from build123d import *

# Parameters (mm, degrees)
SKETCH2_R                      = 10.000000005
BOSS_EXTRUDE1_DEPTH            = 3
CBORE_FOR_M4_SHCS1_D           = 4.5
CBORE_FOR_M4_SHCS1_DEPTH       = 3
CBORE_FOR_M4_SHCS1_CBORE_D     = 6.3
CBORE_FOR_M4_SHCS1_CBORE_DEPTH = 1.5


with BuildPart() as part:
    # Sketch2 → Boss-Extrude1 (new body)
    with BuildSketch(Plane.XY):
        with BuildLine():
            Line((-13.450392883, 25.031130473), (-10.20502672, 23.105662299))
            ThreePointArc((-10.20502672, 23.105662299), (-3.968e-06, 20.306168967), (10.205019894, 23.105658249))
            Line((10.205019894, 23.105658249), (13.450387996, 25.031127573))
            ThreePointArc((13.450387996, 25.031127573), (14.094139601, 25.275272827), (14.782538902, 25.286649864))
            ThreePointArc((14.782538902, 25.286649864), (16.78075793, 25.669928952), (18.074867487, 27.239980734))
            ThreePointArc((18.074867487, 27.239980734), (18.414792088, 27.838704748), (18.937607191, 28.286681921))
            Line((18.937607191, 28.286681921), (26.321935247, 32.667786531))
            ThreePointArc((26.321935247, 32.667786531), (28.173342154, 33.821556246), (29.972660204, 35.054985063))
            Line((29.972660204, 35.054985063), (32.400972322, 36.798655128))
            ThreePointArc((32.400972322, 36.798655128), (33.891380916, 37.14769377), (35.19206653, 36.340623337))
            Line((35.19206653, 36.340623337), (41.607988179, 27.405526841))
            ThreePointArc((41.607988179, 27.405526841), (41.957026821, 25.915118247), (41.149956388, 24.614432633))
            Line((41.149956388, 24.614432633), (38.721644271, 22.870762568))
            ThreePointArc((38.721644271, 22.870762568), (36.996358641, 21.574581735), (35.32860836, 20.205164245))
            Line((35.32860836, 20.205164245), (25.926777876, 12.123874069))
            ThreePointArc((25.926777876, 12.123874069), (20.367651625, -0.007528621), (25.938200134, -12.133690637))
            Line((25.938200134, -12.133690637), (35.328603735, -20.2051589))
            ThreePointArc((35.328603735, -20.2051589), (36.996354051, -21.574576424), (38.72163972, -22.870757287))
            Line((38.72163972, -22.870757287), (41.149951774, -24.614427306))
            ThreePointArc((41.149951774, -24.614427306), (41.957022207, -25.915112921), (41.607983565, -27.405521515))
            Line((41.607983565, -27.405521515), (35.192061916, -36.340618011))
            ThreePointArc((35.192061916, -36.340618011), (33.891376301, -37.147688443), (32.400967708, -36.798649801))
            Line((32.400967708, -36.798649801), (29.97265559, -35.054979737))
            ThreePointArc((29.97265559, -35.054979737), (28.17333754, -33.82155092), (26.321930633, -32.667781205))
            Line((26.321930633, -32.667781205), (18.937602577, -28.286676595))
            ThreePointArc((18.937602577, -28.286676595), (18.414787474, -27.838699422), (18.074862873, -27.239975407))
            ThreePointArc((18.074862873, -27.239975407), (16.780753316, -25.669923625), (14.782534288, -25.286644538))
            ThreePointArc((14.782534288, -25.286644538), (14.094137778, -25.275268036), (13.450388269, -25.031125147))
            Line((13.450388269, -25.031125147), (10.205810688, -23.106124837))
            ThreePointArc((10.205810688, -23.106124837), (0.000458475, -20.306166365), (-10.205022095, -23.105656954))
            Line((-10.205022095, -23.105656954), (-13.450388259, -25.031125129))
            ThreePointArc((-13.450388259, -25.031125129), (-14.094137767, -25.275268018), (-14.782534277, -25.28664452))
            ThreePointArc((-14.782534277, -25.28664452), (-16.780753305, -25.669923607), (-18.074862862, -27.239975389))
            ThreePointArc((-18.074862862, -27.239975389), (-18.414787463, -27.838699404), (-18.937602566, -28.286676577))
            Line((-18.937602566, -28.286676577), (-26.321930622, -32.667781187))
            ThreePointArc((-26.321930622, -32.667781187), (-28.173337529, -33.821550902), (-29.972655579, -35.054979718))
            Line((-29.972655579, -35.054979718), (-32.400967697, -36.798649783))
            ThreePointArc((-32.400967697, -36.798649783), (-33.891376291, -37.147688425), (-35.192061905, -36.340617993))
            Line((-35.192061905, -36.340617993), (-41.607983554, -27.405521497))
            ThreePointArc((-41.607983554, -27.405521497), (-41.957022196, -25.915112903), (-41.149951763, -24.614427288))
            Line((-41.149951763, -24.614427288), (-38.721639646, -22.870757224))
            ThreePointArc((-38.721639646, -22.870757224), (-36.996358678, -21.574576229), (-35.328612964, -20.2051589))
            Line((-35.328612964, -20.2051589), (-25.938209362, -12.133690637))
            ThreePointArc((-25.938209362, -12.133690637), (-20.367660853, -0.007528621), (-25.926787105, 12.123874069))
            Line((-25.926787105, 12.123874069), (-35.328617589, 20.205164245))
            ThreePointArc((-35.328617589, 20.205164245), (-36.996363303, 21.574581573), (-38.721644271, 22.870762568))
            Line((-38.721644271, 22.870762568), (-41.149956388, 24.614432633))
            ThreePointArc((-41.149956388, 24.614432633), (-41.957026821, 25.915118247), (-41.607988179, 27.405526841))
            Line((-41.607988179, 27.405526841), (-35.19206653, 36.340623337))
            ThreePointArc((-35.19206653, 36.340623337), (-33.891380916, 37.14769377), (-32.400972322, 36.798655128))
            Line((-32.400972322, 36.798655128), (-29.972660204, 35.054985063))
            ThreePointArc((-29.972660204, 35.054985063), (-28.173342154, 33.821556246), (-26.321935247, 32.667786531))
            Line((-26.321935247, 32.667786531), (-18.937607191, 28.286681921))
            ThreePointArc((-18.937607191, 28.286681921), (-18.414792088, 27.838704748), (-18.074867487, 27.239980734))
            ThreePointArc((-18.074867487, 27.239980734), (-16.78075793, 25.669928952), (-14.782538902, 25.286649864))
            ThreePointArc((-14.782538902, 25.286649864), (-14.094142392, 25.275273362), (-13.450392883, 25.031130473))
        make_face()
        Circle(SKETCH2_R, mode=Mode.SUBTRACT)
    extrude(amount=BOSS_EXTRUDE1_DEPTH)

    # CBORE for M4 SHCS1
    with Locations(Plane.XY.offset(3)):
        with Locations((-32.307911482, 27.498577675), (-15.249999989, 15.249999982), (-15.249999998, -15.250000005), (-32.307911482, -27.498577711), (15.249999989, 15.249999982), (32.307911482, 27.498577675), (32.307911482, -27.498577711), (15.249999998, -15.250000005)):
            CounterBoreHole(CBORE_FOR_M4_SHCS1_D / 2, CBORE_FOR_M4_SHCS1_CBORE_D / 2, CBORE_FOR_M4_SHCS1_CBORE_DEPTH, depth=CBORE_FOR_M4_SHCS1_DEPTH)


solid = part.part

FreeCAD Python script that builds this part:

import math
import FreeCAD as App
import Part
import Sketcher

V = App.Vector
Q = App.Units.Quantity

doc = App.newDocument("Part")
body = doc.addObject("PartDesign::Body", "Body")

# Sketch on XY plane
sketch1 = body.newObject("Sketcher::SketchObject", "Sketch")
sketch1.AttachmentSupport = (doc.getObject("XY_Plane"), [""])
sketch1.MapMode = "FlatFace"
sketch1.addGeometry(Part.LineSegment(V(-10.205027, 23.105662, 0), V(-13.450393, 25.03113, 0)), False)
sketch1.addGeometry(Part.ArcOfCircle(Part.Circle(V(-14.470895, 23.31108, 0), V(0, 0, 1), 2), math.radians(59.319443), math.radians(98.964467)), False)
sketch1.addGeometry(Part.ArcOfCircle(Part.Circle(V(-15.250005, 28.250005, 0), V(0, 0, 1), 3), math.radians(-160.325581), math.radians(-81.035533)), False)
sketch1.addGeometry(Part.ArcOfCircle(Part.Circle(V(-19.958109, 26.566631, 0), V(0, 0, 1), 2), math.radians(19.674419), math.radians(59.319443)), False)
sketch1.addGeometry(Part.LineSegment(V(-18.937607, 28.286682, 0), V(-26.321935, 32.667787, 0)), False)
sketch1.addGeometry(Part.ArcOfCircle(Part.Circle(V(-0.80938, 75.66906, 0), V(0, 0, 1), 50), math.radians(-125.680557), math.radians(-120.680557)), False)
sketch1.addGeometry(Part.LineSegment(V(-29.97266, 35.054985, 0), V(-32.400972, 36.798655, 0)), False)
sketch1.addGeometry(Part.ArcOfCircle(Part.Circle(V(-33.567504, 35.174092, 0), V(0, 0, 1), 2), math.radians(54.319443), math.radians(144.319443)), False)
sketch1.addGeometry(Part.LineSegment(V(-35.192067, 36.340623, 0), V(-41.607988, 27.405527, 0)), False)
sketch1.addGeometry(Part.ArcOfCircle(Part.Circle(V(-39.983425, 26.238996, 0), V(0, 0, 1), 2), math.radians(144.319443), math.radians(234.319443)), False)
sketch1.addGeometry(Part.LineSegment(V(-41.149956, 24.614433, 0), V(-38.721644, 22.870763, 0)), False)
sketch1.addGeometry(Part.ArcOfCircle(Part.Circle(V(-67.884924, -17.743312, 0), V(0, 0, 1), 50), math.radians(49.373438), math.radians(54.319443)), False)
sketch1.addGeometry(Part.LineSegment(V(-35.328618, 20.205164, 0), V(-25.926787, 12.123874, 0)), False)
sketch1.addGeometry(Part.ArcOfCircle(Part.Circle(V(-36.367659, 0.000005, 0), V(0, 0, 1), 16), math.radians(-49.31948), math.radians(49.265522)), False)
sketch1.addGeometry(Part.LineSegment(V(-25.938209, -12.133691, 0), V(-35.328613, -20.205159, 0)), False)
sketch1.addGeometry(Part.ArcOfCircle(Part.Circle(V(-67.88492, 17.743317, 0), V(0, 0, 1), 50), math.radians(-54.319443), math.radians(-49.373438)), False)
sketch1.addGeometry(Part.LineSegment(V(-38.72164, -22.870757, 0), V(-41.149952, -24.614427, 0)), False)
sketch1.addGeometry(Part.ArcOfCircle(Part.Circle(V(-39.983421, -26.23899, 0), V(0, 0, 1), 2), math.radians(125.680557), math.radians(215.680557)), False)
sketch1.addGeometry(Part.LineSegment(V(-41.607984, -27.405521, 0), V(-35.192062, -36.340618, 0)), False)
sketch1.addGeometry(Part.ArcOfCircle(Part.Circle(V(-33.567499, -35.174087, 0), V(0, 0, 1), 2), math.radians(-144.319443), math.radians(-54.319443)), False)
sketch1.addGeometry(Part.LineSegment(V(-32.400968, -36.79865, 0), V(-29.972656, -35.05498, 0)), False)
sketch1.addGeometry(Part.ArcOfCircle(Part.Circle(V(-0.809375, -75.669055, 0), V(0, 0, 1), 50), math.radians(120.680557), math.radians(125.680557)), False)
sketch1.addGeometry(Part.LineSegment(V(-26.321931, -32.667781, 0), V(-18.937603, -28.286677, 0)), False)
sketch1.addGeometry(Part.ArcOfCircle(Part.Circle(V(-19.958105, -26.566626, 0), V(0, 0, 1), 2), math.radians(-59.319443), math.radians(-19.674418)), False)
sketch1.addGeometry(Part.ArcOfCircle(Part.Circle(V(-15.25, -28.25, 0), V(0, 0, 1), 3), math.radians(81.035533), math.radians(160.325581)), False)
sketch1.addGeometry(Part.ArcOfCircle(Part.Circle(V(-14.47089, -23.311074, 0), V(0, 0, 1), 2), math.radians(-98.964467), math.radians(-59.319443)), False)
sketch1.addGeometry(Part.LineSegment(V(-13.450388, -25.031125, 0), V(-10.205022, -23.105657, 0)), False)
sketch1.addGeometry(Part.ArcOfCircle(Part.Circle(V(0, -40.306166, 0), V(0, 0, 1), 20), math.radians(59.316816), math.radians(120.680557)), False)
sketch1.addGeometry(Part.LineSegment(V(10.205811, -23.106125, 0), V(13.450388, -25.031125, 0)), False)
sketch1.addGeometry(Part.ArcOfCircle(Part.Circle(V(14.47089, -23.311074, 0), V(0, 0, 1), 2), math.radians(-120.680557), math.radians(-81.035533)), False)
sketch1.addGeometry(Part.ArcOfCircle(Part.Circle(V(15.25, -28.25, 0), V(0, 0, 1), 3), math.radians(19.674419), math.radians(98.964467)), False)
sketch1.addGeometry(Part.ArcOfCircle(Part.Circle(V(19.958105, -26.566626, 0), V(0, 0, 1), 2), math.radians(-160.325582), math.radians(-120.680557)), False)
sketch1.addGeometry(Part.LineSegment(V(18.937603, -28.286677, 0), V(26.321931, -32.667781, 0)), False)
sketch1.addGeometry(Part.ArcOfCircle(Part.Circle(V(0.809375, -75.669055, 0), V(0, 0, 1), 50), math.radians(54.319443), math.radians(59.319443)), False)
sketch1.addGeometry(Part.LineSegment(V(29.972656, -35.05498, 0), V(32.400968, -36.79865, 0)), False)
sketch1.addGeometry(Part.ArcOfCircle(Part.Circle(V(33.567499, -35.174087, 0), V(0, 0, 1), 2), math.radians(-125.680557), math.radians(-35.680557)), False)
sketch1.addGeometry(Part.LineSegment(V(35.192062, -36.340618, 0), V(41.607984, -27.405522, 0)), False)
sketch1.addGeometry(Part.ArcOfCircle(Part.Circle(V(39.983421, -26.23899, 0), V(0, 0, 1), 2), math.radians(-35.680557), math.radians(54.319443)), False)
sketch1.addGeometry(Part.LineSegment(V(41.149952, -24.614427, 0), V(38.72164, -22.870757, 0)), False)
sketch1.addGeometry(Part.ArcOfCircle(Part.Circle(V(67.884863, 17.743358, 0), V(0, 0, 1), 49.999999), math.radians(-130.62649), math.radians(-125.680477)), False)
sketch1.addGeometry(Part.LineSegment(V(35.328604, -20.205159, 0), V(25.9382, -12.133691, 0)), False)
sketch1.addGeometry(Part.ArcOfCircle(Part.Circle(V(36.36765, 0.000005, 0), V(0, 0, 1), 16), math.radians(130.734478), math.radians(229.31948)), False)
sketch1.addGeometry(Part.LineSegment(V(25.926778, 12.123874, 0), V(35.328608, 20.205164, 0)), False)
sketch1.addGeometry(Part.ArcOfCircle(Part.Circle(V(67.884868, -17.743353, 0), V(0, 0, 1), 50), math.radians(125.680477), math.radians(130.62649)), False)
sketch1.addGeometry(Part.LineSegment(V(38.721644, 22.870763, 0), V(41.149956, 24.614433, 0)), False)
sketch1.addGeometry(Part.ArcOfCircle(Part.Circle(V(39.983425, 26.238996, 0), V(0, 0, 1), 2), math.radians(-54.319443), math.radians(35.680557)), False)
sketch1.addGeometry(Part.LineSegment(V(41.607988, 27.405527, 0), V(35.192067, 36.340623, 0)), False)
sketch1.addGeometry(Part.ArcOfCircle(Part.Circle(V(33.567504, 35.174092, 0), V(0, 0, 1), 2), math.radians(35.680557), math.radians(125.680557)), False)
sketch1.addGeometry(Part.LineSegment(V(32.400972, 36.798655, 0), V(29.97266, 35.054985, 0)), False)
sketch1.addGeometry(Part.ArcOfCircle(Part.Circle(V(0.80938, 75.66906, 0), V(0, 0, 1), 50), math.radians(-59.319443), math.radians(-54.319443)), False)
sketch1.addGeometry(Part.LineSegment(V(26.321935, 32.667787, 0), V(18.937607, 28.286682, 0)), False)
sketch1.addGeometry(Part.ArcOfCircle(Part.Circle(V(19.958109, 26.566631, 0), V(0, 0, 1), 2), math.radians(120.680557), math.radians(160.325581)), False)
sketch1.addGeometry(Part.ArcOfCircle(Part.Circle(V(15.250005, 28.250005, 0), V(0, 0, 1), 3), math.radians(-98.964467), math.radians(-19.674419)), False)
sketch1.addGeometry(Part.ArcOfCircle(Part.Circle(V(14.470895, 23.31108, 0), V(0, 0, 1), 2), math.radians(81.035533), math.radians(120.68072)), False)
sketch1.addGeometry(Part.LineSegment(V(13.450388, 25.031128, 0), V(10.20502, 23.105658, 0)), False)
sketch1.addGeometry(Part.ArcOfCircle(Part.Circle(V(0, 40.306169, 0), V(0, 0, 1), 20), math.radians(-120.680573), math.radians(-59.31945)), False)
sketch1.addGeometry(Part.Circle(V(0, 0, 0), V(0, 0, 1), 10), False)
sketch1.addConstraint(Sketcher.Constraint("Coincident", 0, 2, 1, 1))
sketch1.addConstraint(Sketcher.Constraint("Coincident", 1, 2, 2, 2))
sketch1.addConstraint(Sketcher.Constraint("Coincident", 2, 1, 3, 1))
sketch1.addConstraint(Sketcher.Constraint("Coincident", 3, 2, 4, 1))
sketch1.addConstraint(Sketcher.Constraint("Coincident", 4, 2, 5, 2))
sketch1.addConstraint(Sketcher.Constraint("Coincident", 5, 1, 6, 1))
sketch1.addConstraint(Sketcher.Constraint("Coincident", 6, 2, 7, 1))
sketch1.addConstraint(Sketcher.Constraint("Coincident", 7, 2, 8, 1))
sketch1.addConstraint(Sketcher.Constraint("Coincident", 8, 2, 9, 1))
sketch1.addConstraint(Sketcher.Constraint("Coincident", 9, 2, 10, 1))
sketch1.addConstraint(Sketcher.Constraint("Coincident", 10, 2, 11, 2))
sketch1.addConstraint(Sketcher.Constraint("Coincident", 11, 1, 12, 1))
sketch1.addConstraint(Sketcher.Constraint("Coincident", 12, 2, 13, 2))
sketch1.addConstraint(Sketcher.Constraint("Coincident", 13, 1, 14, 1))
sketch1.addConstraint(Sketcher.Constraint("Coincident", 14, 2, 15, 2))
sketch1.addConstraint(Sketcher.Constraint("Coincident", 15, 1, 16, 1))
sketch1.addConstraint(Sketcher.Constraint("Coincident", 16, 2, 17, 1))
sketch1.addConstraint(Sketcher.Constraint("Coincident", 17, 2, 18, 1))
sketch1.addConstraint(Sketcher.Constraint("Coincident", 18, 2, 19, 1))
sketch1.addConstraint(Sketcher.Constraint("Coincident", 19, 2, 20, 1))
sketch1.addConstraint(Sketcher.Constraint("Coincident", 20, 2, 21, 2))
sketch1.addConstraint(Sketcher.Constraint("Coincident", 21, 1, 22, 1))
sketch1.addConstraint(Sketcher.Constraint("Coincident", 22, 2, 23, 1))
sketch1.addConstraint(Sketcher.Constraint("Coincident", 23, 2, 24, 2))
sketch1.addConstraint(Sketcher.Constraint("Coincident", 24, 1, 25, 1))
sketch1.addConstraint(Sketcher.Constraint("Coincident", 25, 2, 26, 1))
sketch1.addConstraint(Sketcher.Constraint("Coincident", 26, 2, 27, 2))
sketch1.addConstraint(Sketcher.Constraint("Coincident", 27, 1, 28, 1))
sketch1.addConstraint(Sketcher.Constraint("Coincident", 28, 2, 29, 1))
sketch1.addConstraint(Sketcher.Constraint("Coincident", 29, 2, 30, 2))
sketch1.addConstraint(Sketcher.Constraint("Coincident", 30, 1, 31, 1))
sketch1.addConstraint(Sketcher.Constraint("Coincident", 31, 2, 32, 1))
sketch1.addConstraint(Sketcher.Constraint("Coincident", 32, 2, 33, 2))
sketch1.addConstraint(Sketcher.Constraint("Coincident", 33, 1, 34, 1))
sketch1.addConstraint(Sketcher.Constraint("Coincident", 34, 2, 35, 1))
sketch1.addConstraint(Sketcher.Constraint("Coincident", 35, 2, 36, 1))
sketch1.addConstraint(Sketcher.Constraint("Coincident", 36, 2, 37, 1))
sketch1.addConstraint(Sketcher.Constraint("Coincident", 37, 2, 38, 1))
sketch1.addConstraint(Sketcher.Constraint("Coincident", 38, 2, 39, 2))
sketch1.addConstraint(Sketcher.Constraint("Coincident", 39, 1, 40, 1))
sketch1.addConstraint(Sketcher.Constraint("Coincident", 40, 2, 41, 2))
sketch1.addConstraint(Sketcher.Constraint("Coincident", 41, 1, 42, 1))
sketch1.addConstraint(Sketcher.Constraint("Coincident", 42, 2, 43, 2))
sketch1.addConstraint(Sketcher.Constraint("Coincident", 43, 1, 44, 1))
sketch1.addConstraint(Sketcher.Constraint("Coincident", 44, 2, 45, 1))
sketch1.addConstraint(Sketcher.Constraint("Coincident", 45, 2, 46, 1))
sketch1.addConstraint(Sketcher.Constraint("Coincident", 46, 2, 47, 1))
sketch1.addConstraint(Sketcher.Constraint("Coincident", 47, 2, 48, 1))
sketch1.addConstraint(Sketcher.Constraint("Coincident", 48, 2, 49, 2))
sketch1.addConstraint(Sketcher.Constraint("Coincident", 49, 1, 50, 1))
sketch1.addConstraint(Sketcher.Constraint("Coincident", 50, 2, 51, 1))
sketch1.addConstraint(Sketcher.Constraint("Coincident", 51, 2, 52, 2))
sketch1.addConstraint(Sketcher.Constraint("Coincident", 52, 1, 53, 1))
sketch1.addConstraint(Sketcher.Constraint("Coincident", 53, 2, 54, 1))
sketch1.addConstraint(Sketcher.Constraint("Coincident", 54, 2, 55, 2))
sketch1.addConstraint(Sketcher.Constraint("Coincident", 55, 1, 0, 1))
sketch1.addConstraint(Sketcher.Constraint("Coincident", 56, 3, -1, 1))
sketch1.addConstraint(Sketcher.Constraint("PointOnObject", 27, 3, -2))
sketch1.addConstraint(Sketcher.Constraint("PointOnObject", 55, 3, -2))
sketch1.addConstraint(Sketcher.Constraint("Diameter", 56, Q("20 mm")))
sketch1.addConstraint(Sketcher.Constraint("Radius", 1, Q("2 mm")))
sketch1.addConstraint(Sketcher.Constraint("Radius", 2, Q("3 mm")))
sketch1.addConstraint(Sketcher.Constraint("Radius", 3, Q("2 mm")))
sketch1.addConstraint(Sketcher.Constraint("Radius", 5, Q("50 mm")))
sketch1.addConstraint(Sketcher.Constraint("Radius", 7, Q("2 mm")))
sketch1.addConstraint(Sketcher.Constraint("Radius", 9, Q("2 mm")))
sketch1.addConstraint(Sketcher.Constraint("Radius", 11, Q("50 mm")))
sketch1.addConstraint(Sketcher.Constraint("Radius", 13, Q("16 mm")))
sketch1.addConstraint(Sketcher.Constraint("Radius", 15, Q("50 mm")))
sketch1.addConstraint(Sketcher.Constraint("Radius", 17, Q("2 mm")))
sketch1.addConstraint(Sketcher.Constraint("Radius", 19, Q("2 mm")))
sketch1.addConstraint(Sketcher.Constraint("Radius", 21, Q("50 mm")))
sketch1.addConstraint(Sketcher.Constraint("Radius", 23, Q("2 mm")))
sketch1.addConstraint(Sketcher.Constraint("Radius", 24, Q("3 mm")))
sketch1.addConstraint(Sketcher.Constraint("Radius", 25, Q("2 mm")))
sketch1.addConstraint(Sketcher.Constraint("Radius", 27, Q("20 mm")))
sketch1.addConstraint(Sketcher.Constraint("Radius", 29, Q("2 mm")))
sketch1.addConstraint(Sketcher.Constraint("Radius", 30, Q("3 mm")))
sketch1.addConstraint(Sketcher.Constraint("Radius", 31, Q("2 mm")))
sketch1.addConstraint(Sketcher.Constraint("Radius", 33, Q("50 mm")))
sketch1.addConstraint(Sketcher.Constraint("Radius", 35, Q("2 mm")))
sketch1.addConstraint(Sketcher.Constraint("Radius", 37, Q("2 mm")))
sketch1.addConstraint(Sketcher.Constraint("Radius", 39, Q("49.999999 mm")))
sketch1.addConstraint(Sketcher.Constraint("Radius", 41, Q("16 mm")))
sketch1.addConstraint(Sketcher.Constraint("Radius", 43, Q("50 mm")))
sketch1.addConstraint(Sketcher.Constraint("Radius", 45, Q("2 mm")))
sketch1.addConstraint(Sketcher.Constraint("Radius", 47, Q("2 mm")))
sketch1.addConstraint(Sketcher.Constraint("Radius", 49, Q("50 mm")))
sketch1.addConstraint(Sketcher.Constraint("Radius", 51, Q("2 mm")))
sketch1.addConstraint(Sketcher.Constraint("Radius", 52, Q("3 mm")))
sketch1.addConstraint(Sketcher.Constraint("Radius", 53, Q("2 mm")))
sketch1.addConstraint(Sketcher.Constraint("Radius", 55, Q("20 mm")))
sketch1.addConstraint(Sketcher.Constraint("Distance", 8, Q("11 mm")))
sketch1.addConstraint(Sketcher.Constraint("Distance", 18, Q("11 mm")))
sketch1.addConstraint(Sketcher.Constraint("Distance", 36, Q("11 mm")))
sketch1.addConstraint(Sketcher.Constraint("Distance", 46, Q("11 mm")))
sketch1.addConstraint(Sketcher.Constraint("DistanceX", 24, 3, -1, 1, Q("15.25 mm")))
sketch1.addConstraint(Sketcher.Constraint("DistanceY", 24, 3, -1, 1, Q("28.25 mm")))
sketch1.addConstraint(Sketcher.Constraint("DistanceX", -1, 1, 30, 3, Q("15.25 mm")))
sketch1.addConstraint(Sketcher.Constraint("DistanceY", 30, 3, -1, 1, Q("28.25 mm")))
sketch1.addConstraint(Sketcher.Constraint("DistanceX", 19, 3, -1, 1, Q("33.567499 mm")))
sketch1.addConstraint(Sketcher.Constraint("DistanceX", -1, 1, 35, 3, Q("33.567499 mm")))
sketch1.addConstraint(Sketcher.Constraint("DistanceX", -1, 1, 40, 2, Q("25.9382 mm")))
sketch1.addConstraint(Sketcher.Constraint("Distance", 0, Q("3.77357 mm")))
sketch1.addConstraint(Sketcher.Constraint("Distance", 14, Q("12.38258 mm")))
sketch1.addConstraint(Sketcher.Constraint("Distance", 26, Q("3.77357 mm")))
sketch1.addConstraint(Sketcher.Constraint("Distance", 40, Q("12.38258 mm")))
sketch1.addConstraint(Sketcher.Constraint("DistanceY", -1, 1, 1, 3, Q("23.31108 mm")))
sketch1.addConstraint(Sketcher.Constraint("DistanceX", 3, 3, -1, 1, Q("19.958109 mm")))
sketch1.addConstraint(Sketcher.Constraint("DistanceY", -1, 1, 3, 3, Q("26.566631 mm")))
sketch1.addConstraint(Sketcher.Constraint("DistanceX", 5, 3, -1, 1, Q("0.80938 mm")))
sketch1.addConstraint(Sketcher.Constraint("DistanceY", -1, 1, 5, 3, Q("75.66906 mm")))
sketch1.addConstraint(Sketcher.Constraint("DistanceX", 13, 3, -1, 1, Q("36.367659 mm")))
sketch1.addConstraint(Sketcher.Constraint("DistanceX", 15, 3, -1, 1, Q("67.88492 mm")))
sketch1.addConstraint(Sketcher.Constraint("DistanceX", 17, 3, -1, 1, Q("39.983421 mm")))
sketch1.addConstraint(Sketcher.Constraint("DistanceY", 17, 3, -1, 1, Q("26.23899 mm")))
sketch1.addConstraint(Sketcher.Constraint("DistanceX", 25, 3, -1, 1, Q("14.47089 mm")))
sketch1.addConstraint(Sketcher.Constraint("DistanceX", -1, 1, 29, 3, Q("14.47089 mm")))
sketch1.addConstraint(Sketcher.Constraint("DistanceX", -1, 1, 37, 3, Q("39.983421 mm")))
sketch1.addConstraint(Sketcher.Constraint("DistanceY", 37, 3, -1, 1, Q("26.23899 mm")))
sketch1.addConstraint(Sketcher.Constraint("DistanceX", -1, 1, 41, 3, Q("36.36765 mm")))
sketch1.addConstraint(Sketcher.Constraint("DistanceX", -1, 1, 49, 3, Q("0.80938 mm")))
sketch1.addConstraint(Sketcher.Constraint("DistanceY", -1, 1, 49, 3, Q("75.66906 mm")))
sketch1.addConstraint(Sketcher.Constraint("DistanceX", -1, 1, 51, 3, Q("19.958109 mm")))
sketch1.addConstraint(Sketcher.Constraint("DistanceY", -1, 1, 51, 3, Q("26.566631 mm")))
sketch1.addConstraint(Sketcher.Constraint("DistanceY", -1, 1, 53, 3, Q("23.31108 mm")))
sketch1.addConstraint(Sketcher.Constraint("DistanceY", -1, 1, 55, 3, Q("40.306169 mm")))
sketch1.addConstraint(Sketcher.Constraint("DistanceY", -1, 1, 0, 2, Q("25.03113 mm")))
sketch1.addConstraint(Sketcher.Constraint("DistanceX", 1, 2, -1, 1, Q("14.782539 mm")))
sketch1.addConstraint(Sketcher.Constraint("DistanceY", -1, 1, 1, 2, Q("25.28665 mm")))
sketch1.addConstraint(Sketcher.Constraint("DistanceY", -1, 1, 2, 1, Q("27.239981 mm")))
sketch1.addConstraint(Sketcher.Constraint("DistanceY", -1, 1, 3, 2, Q("28.286682 mm")))
sketch1.addConstraint(Sketcher.Constraint("DistanceX", 5, 1, -1, 1, Q("29.97266 mm")))
sketch1.addConstraint(Sketcher.Constraint("DistanceX", 8, 2, -1, 1, Q("41.607988 mm")))
sketch1.addConstraint(Sketcher.Constraint("DistanceX", 13, 1, -1, 1, Q("25.938209 mm")))
sketch1.addConstraint(Sketcher.Constraint("DistanceY", 13, 1, -1, 1, Q("12.133691 mm")))
sketch1.addConstraint(Sketcher.Constraint("DistanceY", 14, 2, -1, 1, Q("20.205159 mm")))
sketch1.addConstraint(Sketcher.Constraint("DistanceX", 15, 1, -1, 1, Q("38.72164 mm")))
sketch1.addConstraint(Sketcher.Constraint("DistanceX", 16, 2, -1, 1, Q("41.149952 mm")))
sketch1.addConstraint(Sketcher.Constraint("DistanceY", 17, 2, -1, 1, Q("27.405521 mm")))
sketch1.addConstraint(Sketcher.Constraint("DistanceX", 18, 2, -1, 1, Q("35.192062 mm")))
sketch1.addConstraint(Sketcher.Constraint("DistanceY", 19, 2, -1, 1, Q("36.79865 mm")))
sketch1.addConstraint(Sketcher.Constraint("DistanceY", 20, 2, -1, 1, Q("35.05498 mm")))
sketch1.addConstraint(Sketcher.Constraint("DistanceX", 21, 1, -1, 1, Q("26.321931 mm")))
sketch1.addConstraint(Sketcher.Constraint("DistanceY", 21, 1, -1, 1, Q("32.667781 mm")))
sketch1.addConstraint(Sketcher.Constraint("DistanceX", 25, 2, -1, 1, Q("13.450388 mm")))
sketch1.addConstraint(Sketcher.Constraint("DistanceX", -1, 1, 27, 1, Q("10.205811 mm")))
sketch1.addConstraint(Sketcher.Constraint("DistanceX", -1, 1, 28, 2, Q("13.450388 mm")))
sketch1.addConstraint(Sketcher.Constraint("DistanceX", -1, 1, 32, 2, Q("26.321931 mm")))
sketch1.addConstraint(Sketcher.Constraint("DistanceY", 32, 2, -1, 1, Q("32.667781 mm")))
sketch1.addConstraint(Sketcher.Constraint("DistanceY", 33, 1, -1, 1, Q("35.05498 mm")))
sketch1.addConstraint(Sketcher.Constraint("DistanceY", 34, 2, -1, 1, Q("36.79865 mm")))
sketch1.addConstraint(Sketcher.Constraint("DistanceX", -1, 1, 35, 2, Q("35.192062 mm")))
sketch1.addConstraint(Sketcher.Constraint("DistanceY", 35, 2, -1, 1, Q("36.340618 mm")))
sketch1.addConstraint(Sketcher.Constraint("DistanceX", -1, 1, 37, 2, Q("41.149952 mm")))
sketch1.addConstraint(Sketcher.Constraint("DistanceX", -1, 1, 38, 2, Q("38.72164 mm")))
sketch1.addConstraint(Sketcher.Constraint("DistanceY", 39, 1, -1, 1, Q("20.205159 mm")))
sketch1.addConstraint(Sketcher.Constraint("DistanceY", 40, 2, -1, 1, Q("12.133691 mm")))
sketch1.addConstraint(Sketcher.Constraint("DistanceX", -1, 1, 42, 2, Q("35.328608 mm")))
sketch1.addConstraint(Sketcher.Constraint("DistanceX", -1, 1, 45, 2, Q("41.607988 mm")))
sketch1.addConstraint(Sketcher.Constraint("DistanceX", -1, 1, 48, 2, Q("29.97266 mm")))
sketch1.addConstraint(Sketcher.Constraint("DistanceY", -1, 1, 50, 2, Q("28.286682 mm")))
sketch1.addConstraint(Sketcher.Constraint("DistanceY", -1, 1, 51, 2, Q("27.239981 mm")))
sketch1.addConstraint(Sketcher.Constraint("DistanceX", -1, 1, 52, 1, Q("14.782539 mm")))
sketch1.addConstraint(Sketcher.Constraint("DistanceY", -1, 1, 52, 1, Q("25.28665 mm")))
sketch1.addConstraint(Sketcher.Constraint("DistanceX", -1, 1, 54, 2, Q("10.20502 mm")))
sketch1.addConstraint(Sketcher.Constraint("Distance", 4, Q("8.586174 mm")))
sketch1.addConstraint(Sketcher.Constraint("Distance", 6, Q("2.989496 mm")))
sketch1.addConstraint(Sketcher.Constraint("Distance", 10, Q("2.989496 mm")))
sketch1.addConstraint(Sketcher.Constraint("Distance", 12, Q("12.397648 mm")))
sketch1.addConstraint(Sketcher.Constraint("Distance", 20, Q("2.989496 mm")))
sketch1.addConstraint(Sketcher.Constraint("Distance", 22, Q("8.586174 mm")))
sketch1.addConstraint(Sketcher.Constraint("Distance", 28, Q("3.772653 mm")))
sketch1.addConstraint(Sketcher.Constraint("Distance", 32, Q("8.586174 mm")))
sketch1.addConstraint(Sketcher.Constraint("Distance", 34, Q("2.989496 mm")))
sketch1.addConstraint(Sketcher.Constraint("Distance", 38, Q("2.989496 mm")))
sketch1.addConstraint(Sketcher.Constraint("Distance", 42, Q("12.397648 mm")))
sketch1.addConstraint(Sketcher.Constraint("Distance", 44, Q("2.989496 mm")))
sketch1.addConstraint(Sketcher.Constraint("Distance", 48, Q("2.989496 mm")))
sketch1.addConstraint(Sketcher.Constraint("Distance", 50, Q("8.586174 mm")))
sketch1.addConstraint(Sketcher.Constraint("Distance", 54, Q("3.773572 mm")))
sketch1.addConstraint(Sketcher.Constraint("DistanceX", 7, 3, -1, 1, Q("33.567504 mm")))
sketch1.addConstraint(Sketcher.Constraint("DistanceY", -1, 1, 7, 3, Q("35.174092 mm")))
sketch1.addConstraint(Sketcher.Constraint("DistanceX", 9, 3, -1, 1, Q("39.983425 mm")))
sketch1.addConstraint(Sketcher.Constraint("DistanceY", -1, 1, 9, 3, Q("26.238996 mm")))
sketch1.addConstraint(Sketcher.Constraint("DistanceX", 11, 3, -1, 1, Q("67.884924 mm")))
sketch1.addConstraint(Sketcher.Constraint("DistanceY", 11, 3, -1, 1, Q("17.743312 mm")))
sketch1.addConstraint(Sketcher.Constraint("DistanceX", 23, 3, -1, 1, Q("19.958105 mm")))
sketch1.addConstraint(Sketcher.Constraint("DistanceX", -1, 1, 31, 3, Q("19.958105 mm")))
sketch1.addConstraint(Sketcher.Constraint("DistanceX", -1, 1, 43, 3, Q("67.884868 mm")))
sketch1.addConstraint(Sketcher.Constraint("DistanceY", 43, 3, -1, 1, Q("17.743353 mm")))
sketch1.addConstraint(Sketcher.Constraint("DistanceX", -1, 1, 45, 3, Q("39.983425 mm")))
sketch1.addConstraint(Sketcher.Constraint("DistanceY", -1, 1, 45, 3, Q("26.238996 mm")))
sketch1.addConstraint(Sketcher.Constraint("DistanceX", -1, 1, 47, 3, Q("33.567504 mm")))
sketch1.addConstraint(Sketcher.Constraint("DistanceY", -1, 1, 47, 3, Q("35.174092 mm")))
sketch1.addConstraint(Sketcher.Constraint("DistanceX", 9, 2, -1, 1, Q("41.149956 mm")))
sketch1.addConstraint(Sketcher.Constraint("DistanceX", 11, 1, -1, 1, Q("35.328618 mm")))
sketch1.addConstraint(Sketcher.Constraint("DistanceX", 23, 2, -1, 1, Q("18.074863 mm")))
sketch1.addConstraint(Sketcher.Constraint("DistanceX", 24, 1, -1, 1, Q("14.782534 mm")))
sketch1.addConstraint(Sketcher.Constraint("DistanceX", -1, 1, 29, 2, Q("14.782534 mm")))
sketch1.addConstraint(Sketcher.Constraint("DistanceX", -1, 1, 30, 1, Q("18.074863 mm")))
sketch1.addConstraint(Sketcher.Constraint("DistanceX", -1, 1, 43, 1, Q("38.721644 mm")))
pad1 = body.newObject("PartDesign::Pad", "Pad")
pad1.Profile = sketch1
pad1.Length = 3

# Sketch on XY plane
sketch2 = body.newObject("Sketcher::SketchObject", "Sketch001")
sketch2.AttachmentSupport = (doc.getObject("XY_Plane"), [""])
sketch2.MapMode = "FlatFace"
sketch2.AttachmentOffset = App.Placement(V(0, 0, 3), App.Rotation())
sketch2.addGeometry(Part.Circle(V(-32.3, 27.5, 0), V(0, 0, 1), 2.2), False)
sketch2.addGeometry(Part.Circle(V(-15.2, 15.2, 0), V(0, 0, 1), 2.2), False)
sketch2.addGeometry(Part.Circle(V(-15.2, -15.3, 0), V(0, 0, 1), 2.2), False)
sketch2.addGeometry(Part.Circle(V(-32.3, -27.5, 0), V(0, 0, 1), 2.2), False)
sketch2.addGeometry(Part.Circle(V(15.2, 15.2, 0), V(0, 0, 1), 2.2), False)
sketch2.addGeometry(Part.Circle(V(32.3, 27.5, 0), V(0, 0, 1), 2.2), False)
sketch2.addGeometry(Part.Circle(V(32.3, -27.5, 0), V(0, 0, 1), 2.2), False)
sketch2.addGeometry(Part.Circle(V(15.2, -15.3, 0), V(0, 0, 1), 2.2), False)
sketch2.addConstraint(Sketcher.Constraint("Equal", 0, 1))
sketch2.addConstraint(Sketcher.Constraint("Equal", 1, 2))
sketch2.addConstraint(Sketcher.Constraint("Equal", 2, 3))
sketch2.addConstraint(Sketcher.Constraint("Equal", 3, 4))
sketch2.addConstraint(Sketcher.Constraint("Equal", 4, 5))
sketch2.addConstraint(Sketcher.Constraint("Equal", 5, 6))
sketch2.addConstraint(Sketcher.Constraint("Equal", 6, 7))
sketch2.addConstraint(Sketcher.Constraint("Symmetric", 2, 3, 4, 3, -1, 1))
sketch2.addConstraint(Sketcher.Constraint("Symmetric", 3, 3, 5, 3, -1, 1))
sketch2.addConstraint(Sketcher.Constraint("Symmetric", 0, 3, 6, 3, -1, 1))
sketch2.addConstraint(Sketcher.Constraint("Symmetric", 1, 3, 7, 3, -1, 1))
sketch2.addConstraint(Sketcher.Constraint("Symmetric", 1, 3, 4, 3, -2))
sketch2.addConstraint(Sketcher.Constraint("Symmetric", 0, 3, 5, 3, -2))
sketch2.addConstraint(Sketcher.Constraint("Diameter", 0, Q("4.5 mm")))
sketch2.addConstraint(Sketcher.Constraint("DistanceY", 2, 3, 1, 3, Q("30.5 mm")))
sketch2.addConstraint(Sketcher.Constraint("DistanceX", 1, 3, 4, 3, Q("30.5 mm")))
sketch2.addConstraint(Sketcher.Constraint("DistanceX", 0, 3, -1, 1, Q("32.307911 mm")))
sketch2.addConstraint(Sketcher.Constraint("DistanceY", -1, 1, 0, 3, Q("27.498578 mm")))
doc.recompute()
hole = body.newObject("PartDesign::Hole", "Hole")
hole.Profile = sketch2
hole.ThreadType = "None"
hole.Diameter = 4.5
hole.DepthType = "Dimension"
hole.Depth = 3
hole.DrillPoint = "Flat"
hole.HoleCutType = "Counterbore"
hole.HoleCutDiameter = 6.3
hole.HoleCutDepth = 1.5

doc.recompute()
